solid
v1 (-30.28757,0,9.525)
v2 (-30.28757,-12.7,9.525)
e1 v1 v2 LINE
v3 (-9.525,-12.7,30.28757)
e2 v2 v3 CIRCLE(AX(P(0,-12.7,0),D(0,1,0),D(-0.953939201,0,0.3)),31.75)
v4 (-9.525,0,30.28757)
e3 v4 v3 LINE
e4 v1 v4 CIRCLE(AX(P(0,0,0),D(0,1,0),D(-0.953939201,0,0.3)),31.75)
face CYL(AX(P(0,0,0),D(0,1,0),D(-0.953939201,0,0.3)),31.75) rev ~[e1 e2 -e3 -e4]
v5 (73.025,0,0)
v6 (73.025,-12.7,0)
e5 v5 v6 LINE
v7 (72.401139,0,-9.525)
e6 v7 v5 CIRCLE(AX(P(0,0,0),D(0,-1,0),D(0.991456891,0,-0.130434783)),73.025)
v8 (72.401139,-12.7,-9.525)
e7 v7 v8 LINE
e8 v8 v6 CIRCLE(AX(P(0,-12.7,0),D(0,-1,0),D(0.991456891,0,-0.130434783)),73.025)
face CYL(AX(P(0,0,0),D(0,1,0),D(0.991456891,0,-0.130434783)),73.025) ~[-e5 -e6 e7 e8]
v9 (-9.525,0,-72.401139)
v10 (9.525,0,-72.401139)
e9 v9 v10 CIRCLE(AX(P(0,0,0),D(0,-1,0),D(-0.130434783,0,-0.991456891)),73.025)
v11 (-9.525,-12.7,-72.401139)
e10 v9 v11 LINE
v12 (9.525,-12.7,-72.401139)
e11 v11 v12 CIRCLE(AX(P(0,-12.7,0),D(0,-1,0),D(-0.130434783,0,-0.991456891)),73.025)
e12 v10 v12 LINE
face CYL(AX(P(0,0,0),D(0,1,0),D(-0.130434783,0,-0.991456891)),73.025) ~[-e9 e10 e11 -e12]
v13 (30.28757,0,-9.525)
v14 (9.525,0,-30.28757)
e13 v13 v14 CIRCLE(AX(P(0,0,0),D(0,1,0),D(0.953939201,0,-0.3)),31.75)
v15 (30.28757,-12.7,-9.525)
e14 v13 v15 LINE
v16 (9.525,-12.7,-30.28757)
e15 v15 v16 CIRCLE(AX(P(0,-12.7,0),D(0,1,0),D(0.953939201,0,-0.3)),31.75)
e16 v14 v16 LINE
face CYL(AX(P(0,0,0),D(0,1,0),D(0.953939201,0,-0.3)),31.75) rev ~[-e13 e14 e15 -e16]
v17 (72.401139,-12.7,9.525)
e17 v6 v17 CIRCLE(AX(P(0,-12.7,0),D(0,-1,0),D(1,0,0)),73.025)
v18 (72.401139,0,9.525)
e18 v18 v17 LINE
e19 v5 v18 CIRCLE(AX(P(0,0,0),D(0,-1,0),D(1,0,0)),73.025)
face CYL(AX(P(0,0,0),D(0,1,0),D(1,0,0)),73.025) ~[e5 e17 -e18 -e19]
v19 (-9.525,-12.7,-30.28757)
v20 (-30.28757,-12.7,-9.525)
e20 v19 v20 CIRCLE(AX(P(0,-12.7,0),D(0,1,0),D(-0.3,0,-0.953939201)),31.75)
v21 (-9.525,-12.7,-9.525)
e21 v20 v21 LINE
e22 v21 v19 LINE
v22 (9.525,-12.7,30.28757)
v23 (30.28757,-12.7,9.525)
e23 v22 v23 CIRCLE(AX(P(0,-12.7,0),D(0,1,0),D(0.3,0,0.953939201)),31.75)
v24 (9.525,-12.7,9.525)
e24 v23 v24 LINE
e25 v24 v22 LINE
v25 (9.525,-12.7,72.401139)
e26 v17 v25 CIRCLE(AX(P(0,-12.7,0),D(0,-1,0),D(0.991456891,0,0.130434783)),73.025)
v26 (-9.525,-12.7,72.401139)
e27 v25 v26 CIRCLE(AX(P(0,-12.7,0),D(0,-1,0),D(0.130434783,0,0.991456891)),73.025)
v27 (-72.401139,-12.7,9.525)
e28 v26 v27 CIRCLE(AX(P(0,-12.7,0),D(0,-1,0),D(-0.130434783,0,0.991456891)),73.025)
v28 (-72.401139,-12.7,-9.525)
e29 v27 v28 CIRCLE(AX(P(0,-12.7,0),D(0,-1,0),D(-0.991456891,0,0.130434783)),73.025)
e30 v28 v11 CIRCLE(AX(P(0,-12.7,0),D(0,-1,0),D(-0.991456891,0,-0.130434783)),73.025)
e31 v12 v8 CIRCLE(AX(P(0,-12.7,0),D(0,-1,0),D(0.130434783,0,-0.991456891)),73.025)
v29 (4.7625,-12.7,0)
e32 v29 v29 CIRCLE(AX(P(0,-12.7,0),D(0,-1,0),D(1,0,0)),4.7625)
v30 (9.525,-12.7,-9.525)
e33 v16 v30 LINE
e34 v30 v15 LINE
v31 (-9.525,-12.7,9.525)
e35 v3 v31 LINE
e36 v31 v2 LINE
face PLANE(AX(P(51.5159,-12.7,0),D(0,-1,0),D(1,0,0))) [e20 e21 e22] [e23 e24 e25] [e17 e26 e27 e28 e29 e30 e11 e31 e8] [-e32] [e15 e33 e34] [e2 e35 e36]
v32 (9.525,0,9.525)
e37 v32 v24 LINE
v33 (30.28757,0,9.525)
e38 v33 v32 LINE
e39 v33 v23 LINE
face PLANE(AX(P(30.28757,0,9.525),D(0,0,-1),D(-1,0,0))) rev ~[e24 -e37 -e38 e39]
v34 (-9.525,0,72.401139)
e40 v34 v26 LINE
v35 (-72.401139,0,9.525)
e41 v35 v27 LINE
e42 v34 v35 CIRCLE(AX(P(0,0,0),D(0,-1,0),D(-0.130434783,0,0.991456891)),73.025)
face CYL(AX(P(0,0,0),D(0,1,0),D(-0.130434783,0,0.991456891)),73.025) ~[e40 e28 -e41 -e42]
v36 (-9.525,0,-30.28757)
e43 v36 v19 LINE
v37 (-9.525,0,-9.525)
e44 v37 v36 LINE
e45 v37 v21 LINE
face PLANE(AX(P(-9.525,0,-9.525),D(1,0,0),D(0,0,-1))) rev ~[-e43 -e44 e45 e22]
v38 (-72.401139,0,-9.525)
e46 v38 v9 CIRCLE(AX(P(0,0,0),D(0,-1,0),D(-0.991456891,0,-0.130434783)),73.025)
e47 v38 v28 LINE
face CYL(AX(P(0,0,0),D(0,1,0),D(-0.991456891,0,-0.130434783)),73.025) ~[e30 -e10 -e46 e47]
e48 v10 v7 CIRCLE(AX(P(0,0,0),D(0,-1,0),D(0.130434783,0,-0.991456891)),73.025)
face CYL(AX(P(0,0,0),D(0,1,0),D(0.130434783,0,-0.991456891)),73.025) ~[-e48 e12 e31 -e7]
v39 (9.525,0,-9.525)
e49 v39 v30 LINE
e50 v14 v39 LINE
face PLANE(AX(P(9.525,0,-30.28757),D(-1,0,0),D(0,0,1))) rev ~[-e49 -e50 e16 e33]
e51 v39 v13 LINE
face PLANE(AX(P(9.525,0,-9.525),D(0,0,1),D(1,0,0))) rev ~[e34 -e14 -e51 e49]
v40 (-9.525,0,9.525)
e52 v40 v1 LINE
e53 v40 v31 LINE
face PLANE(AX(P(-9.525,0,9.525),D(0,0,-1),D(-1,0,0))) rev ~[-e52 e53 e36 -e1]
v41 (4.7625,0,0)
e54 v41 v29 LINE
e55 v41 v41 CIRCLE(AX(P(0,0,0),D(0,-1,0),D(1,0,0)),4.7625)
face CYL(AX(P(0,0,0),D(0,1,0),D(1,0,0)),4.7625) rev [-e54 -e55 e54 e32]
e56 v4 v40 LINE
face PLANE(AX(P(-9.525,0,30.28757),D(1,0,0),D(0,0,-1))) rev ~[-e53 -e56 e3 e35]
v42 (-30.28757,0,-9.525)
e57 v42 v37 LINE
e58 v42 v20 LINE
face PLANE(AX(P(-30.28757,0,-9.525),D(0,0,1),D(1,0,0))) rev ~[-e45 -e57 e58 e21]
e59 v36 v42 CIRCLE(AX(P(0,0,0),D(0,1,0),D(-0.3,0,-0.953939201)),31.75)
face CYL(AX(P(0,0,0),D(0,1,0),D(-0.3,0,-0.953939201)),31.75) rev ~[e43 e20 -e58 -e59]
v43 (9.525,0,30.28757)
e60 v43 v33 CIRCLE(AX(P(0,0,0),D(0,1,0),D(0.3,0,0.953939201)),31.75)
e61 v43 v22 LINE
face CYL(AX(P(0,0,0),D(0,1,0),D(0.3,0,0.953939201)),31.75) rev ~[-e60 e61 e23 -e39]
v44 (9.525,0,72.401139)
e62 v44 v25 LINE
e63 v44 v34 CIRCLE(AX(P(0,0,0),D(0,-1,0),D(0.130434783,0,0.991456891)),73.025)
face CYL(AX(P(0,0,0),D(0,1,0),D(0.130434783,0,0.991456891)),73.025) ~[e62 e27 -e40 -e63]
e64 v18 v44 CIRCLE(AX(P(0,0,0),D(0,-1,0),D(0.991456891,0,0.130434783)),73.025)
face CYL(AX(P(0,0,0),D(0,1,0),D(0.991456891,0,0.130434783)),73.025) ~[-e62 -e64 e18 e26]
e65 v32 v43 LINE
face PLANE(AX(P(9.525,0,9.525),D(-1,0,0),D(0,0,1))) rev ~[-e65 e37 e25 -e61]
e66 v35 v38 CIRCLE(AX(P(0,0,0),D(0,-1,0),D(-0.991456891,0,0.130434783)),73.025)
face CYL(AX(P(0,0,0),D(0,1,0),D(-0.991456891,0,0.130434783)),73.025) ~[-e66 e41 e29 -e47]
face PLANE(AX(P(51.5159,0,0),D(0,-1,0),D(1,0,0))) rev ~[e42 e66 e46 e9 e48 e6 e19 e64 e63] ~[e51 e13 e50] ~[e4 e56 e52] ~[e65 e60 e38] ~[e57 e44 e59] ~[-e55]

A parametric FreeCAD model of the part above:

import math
import FreeCAD as App
import Part
import Sketcher
Q = App.Units.Quantity

doc = App.newDocument("Part")
body = doc.addObject("PartDesign::Body", "Body")

# Sketch on XZ plane
sketch1 = doc.addObject("Sketcher::SketchObject", "Sketch")
body.addObject(sketch1)
sketch1.AttachmentSupport = (doc.XZ_Plane, [""])
sketch1.MapMode = "FlatFace"
sketch1.addGeometry([
    Part.ArcOfCircle(Part.Circle(App.Vector(0, 0, 0), App.Vector(0, 0, 1), 73), math.radians(-7.49), math.radians(0)),  # 0
    Part.ArcOfCircle(Part.Circle(App.Vector(0, 0, 0), App.Vector(0, 0, 1), 73), math.radians(0), math.radians(7.49)),  # 1
    Part.ArcOfCircle(Part.Circle(App.Vector(0, 0, 0), App.Vector(0, 0, 1), 73), math.radians(7), math.radians(83)),  # 2
    Part.ArcOfCircle(Part.Circle(App.Vector(0, 0, 0), App.Vector(0, 0, 1), 73), math.radians(82.51), math.radians(97.49)),  # 3
    Part.ArcOfCircle(Part.Circle(App.Vector(0, 0, 0), App.Vector(0, 0, 1), 73), math.radians(97), math.radians(173)),  # 4
    Part.ArcOfCircle(Part.Circle(App.Vector(0, 0, 0), App.Vector(0, 0, 1), 73), math.radians(172.51), math.radians(187.49)),  # 5
    Part.ArcOfCircle(Part.Circle(App.Vector(0, 0, 0), App.Vector(0, 0, 1), 73), math.radians(-173), math.radians(-97)),  # 6
    Part.ArcOfCircle(Part.Circle(App.Vector(0, 0, 0), App.Vector(0, 0, 1), 73), math.radians(-97.49), math.radians(-82.51)),  # 7
    Part.ArcOfCircle(Part.Circle(App.Vector(0, 0, 0), App.Vector(0, 0, 1), 73), math.radians(-83), math.radians(-7)),  # 8
    Part.LineSegment(App.Vector(-30.3, -9.5, 0), App.Vector(-9.5, -9.5, 0)),  # 9
    Part.LineSegment(App.Vector(-9.5, -9.5, 0), App.Vector(-9.5, -30.3, 0)),  # 10
    Part.ArcOfCircle(Part.Circle(App.Vector(0, 0, 0), App.Vector(0, 0, 1), 31.8), math.radians(-163), math.radians(-107)),  # 11
    Part.LineSegment(App.Vector(9.5, -9.5, 0), App.Vector(30.3, -9.5, 0)),  # 12
    Part.ArcOfCircle(Part.Circle(App.Vector(0, 0, 0), App.Vector(0, 0, 1), 31.8), math.radians(-73), math.radians(-17)),  # 13
    Part.LineSegment(App.Vector(9.5, -30.3, 0), App.Vector(9.5, -9.5, 0)),  # 14
    Part.Circle(App.Vector(0, 0, 0), App.Vector(0, 0, 1), 4.8),  # 15
    Part.LineSegment(App.Vector(-9.5, 30.3, 0), App.Vector(-9.5, 9.5, 0)),  # 16
    Part.LineSegment(App.Vector(-9.5, 9.5, 0), App.Vector(-30.3, 9.5, 0)),  # 17
    Part.ArcOfCircle(Part.Circle(App.Vector(0, 0, 0), App.Vector(0, 0, 1), 31.8), math.radians(107), math.radians(163)),  # 18
    Part.LineSegment(App.Vector(30.3, 9.5, 0), App.Vector(9.5, 9.5, 0)),  # 19
    Part.LineSegment(App.Vector(9.5, 9.5, 0), App.Vector(9.5, 30.3, 0)),  # 20
    Part.ArcOfCircle(Part.Circle(App.Vector(0, 0, 0), App.Vector(0, 0, 1), 31.8), math.radians(17), math.radians(73)),  # 21
], False)
sketch1.addConstraint([
    Sketcher.Constraint("Tangent", 0, 2, 1, 1),
    Sketcher.Constraint("Tangent", 1, 2, 2, 1),
    Sketcher.Constraint("Tangent", 2, 2, 3, 1),
    Sketcher.Constraint("Tangent", 3, 2, 4, 1),
    Sketcher.Constraint("Tangent", 4, 2, 5, 1),
    Sketcher.Constraint("Tangent", 5, 2, 6, 1),
    Sketcher.Constraint("Tangent", 6, 2, 7, 1),
    Sketcher.Constraint("Tangent", 7, 2, 8, 1),
    Sketcher.Constraint("Tangent", 8, 2, 0, 1),
    Sketcher.Constraint("Coincident", 9, 2, 10, 1),
    Sketcher.Constraint("Coincident", 10, 2, 11, 2),
    Sketcher.Constraint("Coincident", 11, 1, 9, 1),
    Sketcher.Constraint("Coincident", 12, 2, 13, 2),
    Sketcher.Constraint("Coincident", 13, 1, 14, 1),
    Sketcher.Constraint("Coincident", 14, 2, 12, 1),
    Sketcher.Constraint("Coincident", 16, 2, 17, 1),
    Sketcher.Constraint("Coincident", 17, 2, 18, 2),
    Sketcher.Constraint("Coincident", 18, 1, 16, 1),
    Sketcher.Constraint("Coincident", 19, 2, 20, 1),
    Sketcher.Constraint("Coincident", 20, 2, 21, 2),
    Sketcher.Constraint("Coincident", 21, 1, 19, 1),
    Sketcher.Constraint("Horizontal", 9),
    Sketcher.Constraint("Vertical", 10),
    Sketcher.Constraint("Horizontal", 12),
    Sketcher.Constraint("Vertical", 14),
    Sketcher.Constraint("Vertical", 16),
    Sketcher.Constraint("Horizontal", 17),
    Sketcher.Constraint("Horizontal", 19),
    Sketcher.Constraint("Vertical", 20),
    Sketcher.Constraint("Coincident", 0, 3, -1, 1),
    Sketcher.Constraint("Coincident", 2, 3, -1, 1),
    Sketcher.Constraint("Coincident", 4, 3, -1, 1),
    Sketcher.Constraint("Coincident", 6, 3, -1, 1),
    Sketcher.Constraint("Coincident", 11, 3, -1, 1),
    Sketcher.Constraint("Coincident", 13, 3, -1, 1),
    Sketcher.Constraint("Coincident", 15, 3, -1, 1),
    Sketcher.Constraint("Coincident", 18, 3, -1, 1),
    Sketcher.Constraint("Coincident", 21, 3, -1, 1),
    Sketcher.Constraint("Equal", 11, 13),
    Sketcher.Constraint("Equal", 13, 18),
    Sketcher.Constraint("Equal", 18, 21),
    Sketcher.Constraint("Symmetric", 14, 2, 16, 2, -1, 1),
    Sketcher.Constraint("Symmetric", 9, 2, 19, 2, -1, 1),
    Sketcher.Constraint("Symmetric", 9, 2, 14, 2, -2),
    Sketcher.Constraint("PointOnObject", 0, 2, -1),
    Sketcher.Constraint("Horizontal", 2, 2, 3, 2),
    Sketcher.Constraint("Horizontal", 1, 2, 4, 2),
    Sketcher.Constraint("Horizontal", 6, 2, 7, 2),
    Sketcher.Constraint("Horizontal", 5, 2, 8, 2),
    Sketcher.Constraint("Horizontal", 8, 2, 9, 2),
    Sketcher.Constraint("Horizontal", 4, 2, 16, 2),
    Sketcher.Constraint("Vertical", 3, 2, 6, 2),
    Sketcher.Constraint("Vertical", 6, 2, 9, 2),
    Sketcher.Constraint("Equal", 19, 10),
    Sketcher.Constraint("Radius", 11, Q("1.25 in")),
    Sketcher.Constraint("Diameter", 15, Q("0.375 in")),
    Sketcher.Constraint("Radius", 0, Q("2.875 in")),
    Sketcher.Constraint("DistanceX", 3, 2, 2, 2, Q("0.75 in")),
])
pad1 = doc.addObject("PartDesign::Pad", "Pad")
body.addObject(pad1)
pad1.Profile = sketch1
pad1.Length = Q("0.5 in")

doc.recompute()
